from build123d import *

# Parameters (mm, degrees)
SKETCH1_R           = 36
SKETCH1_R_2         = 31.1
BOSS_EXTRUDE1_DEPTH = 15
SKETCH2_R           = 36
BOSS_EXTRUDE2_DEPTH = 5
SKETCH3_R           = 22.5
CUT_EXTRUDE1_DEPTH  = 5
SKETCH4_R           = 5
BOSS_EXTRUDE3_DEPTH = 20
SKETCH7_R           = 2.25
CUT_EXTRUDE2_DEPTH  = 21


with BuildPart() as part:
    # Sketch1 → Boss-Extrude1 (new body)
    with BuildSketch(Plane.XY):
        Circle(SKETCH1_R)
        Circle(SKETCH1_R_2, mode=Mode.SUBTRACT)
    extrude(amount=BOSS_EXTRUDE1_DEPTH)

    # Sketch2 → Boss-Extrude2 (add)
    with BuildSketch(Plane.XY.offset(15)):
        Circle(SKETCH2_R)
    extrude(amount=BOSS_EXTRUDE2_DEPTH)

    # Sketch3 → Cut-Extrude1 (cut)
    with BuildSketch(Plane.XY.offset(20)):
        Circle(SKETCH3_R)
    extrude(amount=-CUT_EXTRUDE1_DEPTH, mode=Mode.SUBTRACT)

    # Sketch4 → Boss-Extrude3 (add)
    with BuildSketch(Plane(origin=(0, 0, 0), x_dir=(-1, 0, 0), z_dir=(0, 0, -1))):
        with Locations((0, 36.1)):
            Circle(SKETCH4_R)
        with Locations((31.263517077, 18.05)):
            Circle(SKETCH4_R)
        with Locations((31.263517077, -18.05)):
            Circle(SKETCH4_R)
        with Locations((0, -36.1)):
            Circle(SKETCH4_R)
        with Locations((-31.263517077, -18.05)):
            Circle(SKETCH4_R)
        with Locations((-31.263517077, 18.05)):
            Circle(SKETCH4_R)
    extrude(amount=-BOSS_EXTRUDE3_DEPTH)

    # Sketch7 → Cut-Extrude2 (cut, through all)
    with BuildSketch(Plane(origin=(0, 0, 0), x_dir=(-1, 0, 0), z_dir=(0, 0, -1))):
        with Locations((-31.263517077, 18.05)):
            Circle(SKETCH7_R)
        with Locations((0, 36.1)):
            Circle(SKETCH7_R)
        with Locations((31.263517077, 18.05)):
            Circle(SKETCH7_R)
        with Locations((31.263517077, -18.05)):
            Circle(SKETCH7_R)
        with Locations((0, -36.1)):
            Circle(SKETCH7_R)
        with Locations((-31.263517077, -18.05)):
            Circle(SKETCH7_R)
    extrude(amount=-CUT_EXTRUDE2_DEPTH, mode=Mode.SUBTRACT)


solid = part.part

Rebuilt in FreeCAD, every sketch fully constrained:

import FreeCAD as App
import Part
import Sketcher
from FreeCAD import Vector
Q = App.Units.Quantity

doc = App.newDocument("Part")
body = doc.addObject("PartDesign::Body", "Body")

sketch1 = body.newObject("Sketcher::SketchObject", "Sketch")
sketch1.AttachmentSupport = (doc.getObject("XY_Plane"), [""])
sketch1.MapMode = "FlatFace"
sketch1.addGeometry([
    Part.Circle(Vector(0, 0, 0), Vector(0, 0, 1), 36),
    Part.Circle(Vector(0, 0, 0), Vector(0, 0, 1), 31),
], False)
sketch1.addConstraint([
    Sketcher.Constraint("Coincident", 0, 3, -1, 1),
    Sketcher.Constraint("Coincident", 1, 3, -1, 1),
    Sketcher.Constraint("Diameter", 0, Q("72 mm")),
    Sketcher.Constraint("Diameter", 1, Q("62.2 mm")),
])
pad1 = body.newObject("PartDesign::Pad", "Pad")
pad1.Profile = sketch1
pad1.Length = 15

sketch2 = body.newObject("Sketcher::SketchObject", "Sketch001")
sketch2.AttachmentSupport = (doc.getObject("XY_Plane"), [""])
sketch2.MapMode = "FlatFace"
sketch2.AttachmentOffset = App.Placement(Vector(0, 0, 15), App.Rotation())
sketch2.addGeometry(Part.Circle(Vector(0, 0, 0), Vector(0, 0, 1), 36), False)
sketch2.addConstraint([
    Sketcher.Constraint("Coincident", 0, 3, -1, 1),
    Sketcher.Constraint("Diameter", 0, Q("72 mm")),
])
pad2 = body.newObject("PartDesign::Pad", "Pad001")
pad2.Profile = sketch2
pad2.Length = 5

sketch3 = body.newObject("Sketcher::SketchObject", "Sketch002")
sketch3.AttachmentSupport = (doc.getObject("XY_Plane"), [""])
sketch3.MapMode = "FlatFace"
sketch3.AttachmentOffset = App.Placement(Vector(0, 0, 20), App.Rotation())
sketch3.addGeometry(Part.Circle(Vector(0, 0, 0), Vector(0, 0, 1), 22), False)
sketch3.addConstraint([
    Sketcher.Constraint("Coincident", 0, 3, -1, 1),
    Sketcher.Constraint("Diameter", 0, Q("45 mm")),
])
pocket1 = body.newObject("PartDesign::Pocket", "Pocket")
pocket1.Profile = sketch3
pocket1.Length = 5

sketch4 = body.newObject("Sketcher::SketchObject", "Sketch003")
sketch4.AttachmentSupport = (doc.getObject("XY_Plane"), [""])
sketch4.MapMode = "FlatFace"
sketch4.addGeometry([
    Part.Circle(Vector(0, 36, 0), Vector(0, 0, 1), 5),
    Part.Circle(Vector(-31, 18, 0), Vector(0, 0, 1), 5),
    Part.Circle(Vector(-31, -18, 0), Vector(0, 0, 1), 5),
    Part.Circle(Vector(0, -36, 0), Vector(0, 0, 1), 5),
    Part.Circle(Vector(31, -18, 0), Vector(0, 0, 1), 5),
    Part.Circle(Vector(31, 18, 0), Vector(0, 0, 1), 5),
], False)
sketch4.addConstraint([
    Sketcher.Constraint("Equal", 0, 1),
    Sketcher.Constraint("Equal", 1, 2),
    Sketcher.Constraint("Equal", 2, 3),
    Sketcher.Constraint("Equal", 3, 4),
    Sketcher.Constraint("Equal", 4, 5),
    Sketcher.Constraint("Symmetric", 0, 3, 3, 3, -1, 1),
    Sketcher.Constraint("Symmetric", 1, 3, 4, 3, -1, 1),
    Sketcher.Constraint("Symmetric", 2, 3, 5, 3, -1, 1),
    Sketcher.Constraint("Symmetric", 2, 3, 4, 3, -2),
    Sketcher.Constraint("PointOnObject", 0, 3, -2),
    Sketcher.Constraint("Diameter", 0, Q("10 mm")),
    Sketcher.Constraint("DistanceY", -1, 1, 0, 3, Q("36.1 mm")),
    Sketcher.Constraint("DistanceY", 2, 3, 1, 3, Q("36.1 mm")),
    Sketcher.Constraint("DistanceX", 1, 3, -1, 1, Q("31.263517 mm")),
])
pad3 = body.newObject("PartDesign::Pad", "Pad002")
pad3.Profile = sketch4
pad3.Length = 20

sketch5 = body.newObject("Sketcher::SketchObject", "Sketch004")
sketch5.AttachmentSupport = (doc.getObject("XY_Plane"), [""])
sketch5.MapMode = "FlatFace"
sketch5.addGeometry([
    Part.Circle(Vector(31.3, 18.1, 0), Vector(0, 0, 1), 2.2),
    Part.Circle(Vector(0, 36.1, 0), Vector(0, 0, 1), 2.2),
    Part.Circle(Vector(-31.3, 18.1, 0), Vector(0, 0, 1), 2.2),
    Part.Circle(Vector(-31.3, -18.1, 0), Vector(0, 0, 1), 2.2),
    Part.Circle(Vector(0, -36.1, 0), Vector(0, 0, 1), 2.2),
    Part.Circle(Vector(31.3, -18.1, 0), Vector(0, 0, 1), 2.2),
], False)
sketch5.addConstraint([
    Sketcher.Constraint("Equal", 0, 1),
    Sketcher.Constraint("Equal", 1, 2),
    Sketcher.Constraint("Equal", 2, 3),
    Sketcher.Constraint("Equal", 3, 4),
    Sketcher.Constraint("Equal", 4, 5),
    Sketcher.Constraint("Symmetric", 0, 3, 3, 3, -1, 1),
    Sketcher.Constraint("Symmetric", 1, 3, 4, 3, -1, 1),
    Sketcher.Constraint("Symmetric", 2, 3, 5, 3, -1, 1),
    Sketcher.Constraint("Symmetric", 0, 3, 2, 3, -2),
    Sketcher.Constraint("PointOnObject", 1, 3, -2),
    Sketcher.Constraint("Diameter", 0, Q("4.5 mm")),
    Sketcher.Constraint("DistanceY", -1, 1, 1, 3, Q("36.1 mm")),
    Sketcher.Constraint("DistanceY", 3, 3, 2, 3, Q("36.1 mm")),
    Sketcher.Constraint("DistanceX", -1, 1, 0, 3, Q("31.263517 mm")),
])
pocket2 = body.newObject("PartDesign::Pocket", "Pocket001")
pocket2.Profile = sketch5
pocket2.Type = "ThroughAll"
pocket2.Reversed = True

doc.recompute()
